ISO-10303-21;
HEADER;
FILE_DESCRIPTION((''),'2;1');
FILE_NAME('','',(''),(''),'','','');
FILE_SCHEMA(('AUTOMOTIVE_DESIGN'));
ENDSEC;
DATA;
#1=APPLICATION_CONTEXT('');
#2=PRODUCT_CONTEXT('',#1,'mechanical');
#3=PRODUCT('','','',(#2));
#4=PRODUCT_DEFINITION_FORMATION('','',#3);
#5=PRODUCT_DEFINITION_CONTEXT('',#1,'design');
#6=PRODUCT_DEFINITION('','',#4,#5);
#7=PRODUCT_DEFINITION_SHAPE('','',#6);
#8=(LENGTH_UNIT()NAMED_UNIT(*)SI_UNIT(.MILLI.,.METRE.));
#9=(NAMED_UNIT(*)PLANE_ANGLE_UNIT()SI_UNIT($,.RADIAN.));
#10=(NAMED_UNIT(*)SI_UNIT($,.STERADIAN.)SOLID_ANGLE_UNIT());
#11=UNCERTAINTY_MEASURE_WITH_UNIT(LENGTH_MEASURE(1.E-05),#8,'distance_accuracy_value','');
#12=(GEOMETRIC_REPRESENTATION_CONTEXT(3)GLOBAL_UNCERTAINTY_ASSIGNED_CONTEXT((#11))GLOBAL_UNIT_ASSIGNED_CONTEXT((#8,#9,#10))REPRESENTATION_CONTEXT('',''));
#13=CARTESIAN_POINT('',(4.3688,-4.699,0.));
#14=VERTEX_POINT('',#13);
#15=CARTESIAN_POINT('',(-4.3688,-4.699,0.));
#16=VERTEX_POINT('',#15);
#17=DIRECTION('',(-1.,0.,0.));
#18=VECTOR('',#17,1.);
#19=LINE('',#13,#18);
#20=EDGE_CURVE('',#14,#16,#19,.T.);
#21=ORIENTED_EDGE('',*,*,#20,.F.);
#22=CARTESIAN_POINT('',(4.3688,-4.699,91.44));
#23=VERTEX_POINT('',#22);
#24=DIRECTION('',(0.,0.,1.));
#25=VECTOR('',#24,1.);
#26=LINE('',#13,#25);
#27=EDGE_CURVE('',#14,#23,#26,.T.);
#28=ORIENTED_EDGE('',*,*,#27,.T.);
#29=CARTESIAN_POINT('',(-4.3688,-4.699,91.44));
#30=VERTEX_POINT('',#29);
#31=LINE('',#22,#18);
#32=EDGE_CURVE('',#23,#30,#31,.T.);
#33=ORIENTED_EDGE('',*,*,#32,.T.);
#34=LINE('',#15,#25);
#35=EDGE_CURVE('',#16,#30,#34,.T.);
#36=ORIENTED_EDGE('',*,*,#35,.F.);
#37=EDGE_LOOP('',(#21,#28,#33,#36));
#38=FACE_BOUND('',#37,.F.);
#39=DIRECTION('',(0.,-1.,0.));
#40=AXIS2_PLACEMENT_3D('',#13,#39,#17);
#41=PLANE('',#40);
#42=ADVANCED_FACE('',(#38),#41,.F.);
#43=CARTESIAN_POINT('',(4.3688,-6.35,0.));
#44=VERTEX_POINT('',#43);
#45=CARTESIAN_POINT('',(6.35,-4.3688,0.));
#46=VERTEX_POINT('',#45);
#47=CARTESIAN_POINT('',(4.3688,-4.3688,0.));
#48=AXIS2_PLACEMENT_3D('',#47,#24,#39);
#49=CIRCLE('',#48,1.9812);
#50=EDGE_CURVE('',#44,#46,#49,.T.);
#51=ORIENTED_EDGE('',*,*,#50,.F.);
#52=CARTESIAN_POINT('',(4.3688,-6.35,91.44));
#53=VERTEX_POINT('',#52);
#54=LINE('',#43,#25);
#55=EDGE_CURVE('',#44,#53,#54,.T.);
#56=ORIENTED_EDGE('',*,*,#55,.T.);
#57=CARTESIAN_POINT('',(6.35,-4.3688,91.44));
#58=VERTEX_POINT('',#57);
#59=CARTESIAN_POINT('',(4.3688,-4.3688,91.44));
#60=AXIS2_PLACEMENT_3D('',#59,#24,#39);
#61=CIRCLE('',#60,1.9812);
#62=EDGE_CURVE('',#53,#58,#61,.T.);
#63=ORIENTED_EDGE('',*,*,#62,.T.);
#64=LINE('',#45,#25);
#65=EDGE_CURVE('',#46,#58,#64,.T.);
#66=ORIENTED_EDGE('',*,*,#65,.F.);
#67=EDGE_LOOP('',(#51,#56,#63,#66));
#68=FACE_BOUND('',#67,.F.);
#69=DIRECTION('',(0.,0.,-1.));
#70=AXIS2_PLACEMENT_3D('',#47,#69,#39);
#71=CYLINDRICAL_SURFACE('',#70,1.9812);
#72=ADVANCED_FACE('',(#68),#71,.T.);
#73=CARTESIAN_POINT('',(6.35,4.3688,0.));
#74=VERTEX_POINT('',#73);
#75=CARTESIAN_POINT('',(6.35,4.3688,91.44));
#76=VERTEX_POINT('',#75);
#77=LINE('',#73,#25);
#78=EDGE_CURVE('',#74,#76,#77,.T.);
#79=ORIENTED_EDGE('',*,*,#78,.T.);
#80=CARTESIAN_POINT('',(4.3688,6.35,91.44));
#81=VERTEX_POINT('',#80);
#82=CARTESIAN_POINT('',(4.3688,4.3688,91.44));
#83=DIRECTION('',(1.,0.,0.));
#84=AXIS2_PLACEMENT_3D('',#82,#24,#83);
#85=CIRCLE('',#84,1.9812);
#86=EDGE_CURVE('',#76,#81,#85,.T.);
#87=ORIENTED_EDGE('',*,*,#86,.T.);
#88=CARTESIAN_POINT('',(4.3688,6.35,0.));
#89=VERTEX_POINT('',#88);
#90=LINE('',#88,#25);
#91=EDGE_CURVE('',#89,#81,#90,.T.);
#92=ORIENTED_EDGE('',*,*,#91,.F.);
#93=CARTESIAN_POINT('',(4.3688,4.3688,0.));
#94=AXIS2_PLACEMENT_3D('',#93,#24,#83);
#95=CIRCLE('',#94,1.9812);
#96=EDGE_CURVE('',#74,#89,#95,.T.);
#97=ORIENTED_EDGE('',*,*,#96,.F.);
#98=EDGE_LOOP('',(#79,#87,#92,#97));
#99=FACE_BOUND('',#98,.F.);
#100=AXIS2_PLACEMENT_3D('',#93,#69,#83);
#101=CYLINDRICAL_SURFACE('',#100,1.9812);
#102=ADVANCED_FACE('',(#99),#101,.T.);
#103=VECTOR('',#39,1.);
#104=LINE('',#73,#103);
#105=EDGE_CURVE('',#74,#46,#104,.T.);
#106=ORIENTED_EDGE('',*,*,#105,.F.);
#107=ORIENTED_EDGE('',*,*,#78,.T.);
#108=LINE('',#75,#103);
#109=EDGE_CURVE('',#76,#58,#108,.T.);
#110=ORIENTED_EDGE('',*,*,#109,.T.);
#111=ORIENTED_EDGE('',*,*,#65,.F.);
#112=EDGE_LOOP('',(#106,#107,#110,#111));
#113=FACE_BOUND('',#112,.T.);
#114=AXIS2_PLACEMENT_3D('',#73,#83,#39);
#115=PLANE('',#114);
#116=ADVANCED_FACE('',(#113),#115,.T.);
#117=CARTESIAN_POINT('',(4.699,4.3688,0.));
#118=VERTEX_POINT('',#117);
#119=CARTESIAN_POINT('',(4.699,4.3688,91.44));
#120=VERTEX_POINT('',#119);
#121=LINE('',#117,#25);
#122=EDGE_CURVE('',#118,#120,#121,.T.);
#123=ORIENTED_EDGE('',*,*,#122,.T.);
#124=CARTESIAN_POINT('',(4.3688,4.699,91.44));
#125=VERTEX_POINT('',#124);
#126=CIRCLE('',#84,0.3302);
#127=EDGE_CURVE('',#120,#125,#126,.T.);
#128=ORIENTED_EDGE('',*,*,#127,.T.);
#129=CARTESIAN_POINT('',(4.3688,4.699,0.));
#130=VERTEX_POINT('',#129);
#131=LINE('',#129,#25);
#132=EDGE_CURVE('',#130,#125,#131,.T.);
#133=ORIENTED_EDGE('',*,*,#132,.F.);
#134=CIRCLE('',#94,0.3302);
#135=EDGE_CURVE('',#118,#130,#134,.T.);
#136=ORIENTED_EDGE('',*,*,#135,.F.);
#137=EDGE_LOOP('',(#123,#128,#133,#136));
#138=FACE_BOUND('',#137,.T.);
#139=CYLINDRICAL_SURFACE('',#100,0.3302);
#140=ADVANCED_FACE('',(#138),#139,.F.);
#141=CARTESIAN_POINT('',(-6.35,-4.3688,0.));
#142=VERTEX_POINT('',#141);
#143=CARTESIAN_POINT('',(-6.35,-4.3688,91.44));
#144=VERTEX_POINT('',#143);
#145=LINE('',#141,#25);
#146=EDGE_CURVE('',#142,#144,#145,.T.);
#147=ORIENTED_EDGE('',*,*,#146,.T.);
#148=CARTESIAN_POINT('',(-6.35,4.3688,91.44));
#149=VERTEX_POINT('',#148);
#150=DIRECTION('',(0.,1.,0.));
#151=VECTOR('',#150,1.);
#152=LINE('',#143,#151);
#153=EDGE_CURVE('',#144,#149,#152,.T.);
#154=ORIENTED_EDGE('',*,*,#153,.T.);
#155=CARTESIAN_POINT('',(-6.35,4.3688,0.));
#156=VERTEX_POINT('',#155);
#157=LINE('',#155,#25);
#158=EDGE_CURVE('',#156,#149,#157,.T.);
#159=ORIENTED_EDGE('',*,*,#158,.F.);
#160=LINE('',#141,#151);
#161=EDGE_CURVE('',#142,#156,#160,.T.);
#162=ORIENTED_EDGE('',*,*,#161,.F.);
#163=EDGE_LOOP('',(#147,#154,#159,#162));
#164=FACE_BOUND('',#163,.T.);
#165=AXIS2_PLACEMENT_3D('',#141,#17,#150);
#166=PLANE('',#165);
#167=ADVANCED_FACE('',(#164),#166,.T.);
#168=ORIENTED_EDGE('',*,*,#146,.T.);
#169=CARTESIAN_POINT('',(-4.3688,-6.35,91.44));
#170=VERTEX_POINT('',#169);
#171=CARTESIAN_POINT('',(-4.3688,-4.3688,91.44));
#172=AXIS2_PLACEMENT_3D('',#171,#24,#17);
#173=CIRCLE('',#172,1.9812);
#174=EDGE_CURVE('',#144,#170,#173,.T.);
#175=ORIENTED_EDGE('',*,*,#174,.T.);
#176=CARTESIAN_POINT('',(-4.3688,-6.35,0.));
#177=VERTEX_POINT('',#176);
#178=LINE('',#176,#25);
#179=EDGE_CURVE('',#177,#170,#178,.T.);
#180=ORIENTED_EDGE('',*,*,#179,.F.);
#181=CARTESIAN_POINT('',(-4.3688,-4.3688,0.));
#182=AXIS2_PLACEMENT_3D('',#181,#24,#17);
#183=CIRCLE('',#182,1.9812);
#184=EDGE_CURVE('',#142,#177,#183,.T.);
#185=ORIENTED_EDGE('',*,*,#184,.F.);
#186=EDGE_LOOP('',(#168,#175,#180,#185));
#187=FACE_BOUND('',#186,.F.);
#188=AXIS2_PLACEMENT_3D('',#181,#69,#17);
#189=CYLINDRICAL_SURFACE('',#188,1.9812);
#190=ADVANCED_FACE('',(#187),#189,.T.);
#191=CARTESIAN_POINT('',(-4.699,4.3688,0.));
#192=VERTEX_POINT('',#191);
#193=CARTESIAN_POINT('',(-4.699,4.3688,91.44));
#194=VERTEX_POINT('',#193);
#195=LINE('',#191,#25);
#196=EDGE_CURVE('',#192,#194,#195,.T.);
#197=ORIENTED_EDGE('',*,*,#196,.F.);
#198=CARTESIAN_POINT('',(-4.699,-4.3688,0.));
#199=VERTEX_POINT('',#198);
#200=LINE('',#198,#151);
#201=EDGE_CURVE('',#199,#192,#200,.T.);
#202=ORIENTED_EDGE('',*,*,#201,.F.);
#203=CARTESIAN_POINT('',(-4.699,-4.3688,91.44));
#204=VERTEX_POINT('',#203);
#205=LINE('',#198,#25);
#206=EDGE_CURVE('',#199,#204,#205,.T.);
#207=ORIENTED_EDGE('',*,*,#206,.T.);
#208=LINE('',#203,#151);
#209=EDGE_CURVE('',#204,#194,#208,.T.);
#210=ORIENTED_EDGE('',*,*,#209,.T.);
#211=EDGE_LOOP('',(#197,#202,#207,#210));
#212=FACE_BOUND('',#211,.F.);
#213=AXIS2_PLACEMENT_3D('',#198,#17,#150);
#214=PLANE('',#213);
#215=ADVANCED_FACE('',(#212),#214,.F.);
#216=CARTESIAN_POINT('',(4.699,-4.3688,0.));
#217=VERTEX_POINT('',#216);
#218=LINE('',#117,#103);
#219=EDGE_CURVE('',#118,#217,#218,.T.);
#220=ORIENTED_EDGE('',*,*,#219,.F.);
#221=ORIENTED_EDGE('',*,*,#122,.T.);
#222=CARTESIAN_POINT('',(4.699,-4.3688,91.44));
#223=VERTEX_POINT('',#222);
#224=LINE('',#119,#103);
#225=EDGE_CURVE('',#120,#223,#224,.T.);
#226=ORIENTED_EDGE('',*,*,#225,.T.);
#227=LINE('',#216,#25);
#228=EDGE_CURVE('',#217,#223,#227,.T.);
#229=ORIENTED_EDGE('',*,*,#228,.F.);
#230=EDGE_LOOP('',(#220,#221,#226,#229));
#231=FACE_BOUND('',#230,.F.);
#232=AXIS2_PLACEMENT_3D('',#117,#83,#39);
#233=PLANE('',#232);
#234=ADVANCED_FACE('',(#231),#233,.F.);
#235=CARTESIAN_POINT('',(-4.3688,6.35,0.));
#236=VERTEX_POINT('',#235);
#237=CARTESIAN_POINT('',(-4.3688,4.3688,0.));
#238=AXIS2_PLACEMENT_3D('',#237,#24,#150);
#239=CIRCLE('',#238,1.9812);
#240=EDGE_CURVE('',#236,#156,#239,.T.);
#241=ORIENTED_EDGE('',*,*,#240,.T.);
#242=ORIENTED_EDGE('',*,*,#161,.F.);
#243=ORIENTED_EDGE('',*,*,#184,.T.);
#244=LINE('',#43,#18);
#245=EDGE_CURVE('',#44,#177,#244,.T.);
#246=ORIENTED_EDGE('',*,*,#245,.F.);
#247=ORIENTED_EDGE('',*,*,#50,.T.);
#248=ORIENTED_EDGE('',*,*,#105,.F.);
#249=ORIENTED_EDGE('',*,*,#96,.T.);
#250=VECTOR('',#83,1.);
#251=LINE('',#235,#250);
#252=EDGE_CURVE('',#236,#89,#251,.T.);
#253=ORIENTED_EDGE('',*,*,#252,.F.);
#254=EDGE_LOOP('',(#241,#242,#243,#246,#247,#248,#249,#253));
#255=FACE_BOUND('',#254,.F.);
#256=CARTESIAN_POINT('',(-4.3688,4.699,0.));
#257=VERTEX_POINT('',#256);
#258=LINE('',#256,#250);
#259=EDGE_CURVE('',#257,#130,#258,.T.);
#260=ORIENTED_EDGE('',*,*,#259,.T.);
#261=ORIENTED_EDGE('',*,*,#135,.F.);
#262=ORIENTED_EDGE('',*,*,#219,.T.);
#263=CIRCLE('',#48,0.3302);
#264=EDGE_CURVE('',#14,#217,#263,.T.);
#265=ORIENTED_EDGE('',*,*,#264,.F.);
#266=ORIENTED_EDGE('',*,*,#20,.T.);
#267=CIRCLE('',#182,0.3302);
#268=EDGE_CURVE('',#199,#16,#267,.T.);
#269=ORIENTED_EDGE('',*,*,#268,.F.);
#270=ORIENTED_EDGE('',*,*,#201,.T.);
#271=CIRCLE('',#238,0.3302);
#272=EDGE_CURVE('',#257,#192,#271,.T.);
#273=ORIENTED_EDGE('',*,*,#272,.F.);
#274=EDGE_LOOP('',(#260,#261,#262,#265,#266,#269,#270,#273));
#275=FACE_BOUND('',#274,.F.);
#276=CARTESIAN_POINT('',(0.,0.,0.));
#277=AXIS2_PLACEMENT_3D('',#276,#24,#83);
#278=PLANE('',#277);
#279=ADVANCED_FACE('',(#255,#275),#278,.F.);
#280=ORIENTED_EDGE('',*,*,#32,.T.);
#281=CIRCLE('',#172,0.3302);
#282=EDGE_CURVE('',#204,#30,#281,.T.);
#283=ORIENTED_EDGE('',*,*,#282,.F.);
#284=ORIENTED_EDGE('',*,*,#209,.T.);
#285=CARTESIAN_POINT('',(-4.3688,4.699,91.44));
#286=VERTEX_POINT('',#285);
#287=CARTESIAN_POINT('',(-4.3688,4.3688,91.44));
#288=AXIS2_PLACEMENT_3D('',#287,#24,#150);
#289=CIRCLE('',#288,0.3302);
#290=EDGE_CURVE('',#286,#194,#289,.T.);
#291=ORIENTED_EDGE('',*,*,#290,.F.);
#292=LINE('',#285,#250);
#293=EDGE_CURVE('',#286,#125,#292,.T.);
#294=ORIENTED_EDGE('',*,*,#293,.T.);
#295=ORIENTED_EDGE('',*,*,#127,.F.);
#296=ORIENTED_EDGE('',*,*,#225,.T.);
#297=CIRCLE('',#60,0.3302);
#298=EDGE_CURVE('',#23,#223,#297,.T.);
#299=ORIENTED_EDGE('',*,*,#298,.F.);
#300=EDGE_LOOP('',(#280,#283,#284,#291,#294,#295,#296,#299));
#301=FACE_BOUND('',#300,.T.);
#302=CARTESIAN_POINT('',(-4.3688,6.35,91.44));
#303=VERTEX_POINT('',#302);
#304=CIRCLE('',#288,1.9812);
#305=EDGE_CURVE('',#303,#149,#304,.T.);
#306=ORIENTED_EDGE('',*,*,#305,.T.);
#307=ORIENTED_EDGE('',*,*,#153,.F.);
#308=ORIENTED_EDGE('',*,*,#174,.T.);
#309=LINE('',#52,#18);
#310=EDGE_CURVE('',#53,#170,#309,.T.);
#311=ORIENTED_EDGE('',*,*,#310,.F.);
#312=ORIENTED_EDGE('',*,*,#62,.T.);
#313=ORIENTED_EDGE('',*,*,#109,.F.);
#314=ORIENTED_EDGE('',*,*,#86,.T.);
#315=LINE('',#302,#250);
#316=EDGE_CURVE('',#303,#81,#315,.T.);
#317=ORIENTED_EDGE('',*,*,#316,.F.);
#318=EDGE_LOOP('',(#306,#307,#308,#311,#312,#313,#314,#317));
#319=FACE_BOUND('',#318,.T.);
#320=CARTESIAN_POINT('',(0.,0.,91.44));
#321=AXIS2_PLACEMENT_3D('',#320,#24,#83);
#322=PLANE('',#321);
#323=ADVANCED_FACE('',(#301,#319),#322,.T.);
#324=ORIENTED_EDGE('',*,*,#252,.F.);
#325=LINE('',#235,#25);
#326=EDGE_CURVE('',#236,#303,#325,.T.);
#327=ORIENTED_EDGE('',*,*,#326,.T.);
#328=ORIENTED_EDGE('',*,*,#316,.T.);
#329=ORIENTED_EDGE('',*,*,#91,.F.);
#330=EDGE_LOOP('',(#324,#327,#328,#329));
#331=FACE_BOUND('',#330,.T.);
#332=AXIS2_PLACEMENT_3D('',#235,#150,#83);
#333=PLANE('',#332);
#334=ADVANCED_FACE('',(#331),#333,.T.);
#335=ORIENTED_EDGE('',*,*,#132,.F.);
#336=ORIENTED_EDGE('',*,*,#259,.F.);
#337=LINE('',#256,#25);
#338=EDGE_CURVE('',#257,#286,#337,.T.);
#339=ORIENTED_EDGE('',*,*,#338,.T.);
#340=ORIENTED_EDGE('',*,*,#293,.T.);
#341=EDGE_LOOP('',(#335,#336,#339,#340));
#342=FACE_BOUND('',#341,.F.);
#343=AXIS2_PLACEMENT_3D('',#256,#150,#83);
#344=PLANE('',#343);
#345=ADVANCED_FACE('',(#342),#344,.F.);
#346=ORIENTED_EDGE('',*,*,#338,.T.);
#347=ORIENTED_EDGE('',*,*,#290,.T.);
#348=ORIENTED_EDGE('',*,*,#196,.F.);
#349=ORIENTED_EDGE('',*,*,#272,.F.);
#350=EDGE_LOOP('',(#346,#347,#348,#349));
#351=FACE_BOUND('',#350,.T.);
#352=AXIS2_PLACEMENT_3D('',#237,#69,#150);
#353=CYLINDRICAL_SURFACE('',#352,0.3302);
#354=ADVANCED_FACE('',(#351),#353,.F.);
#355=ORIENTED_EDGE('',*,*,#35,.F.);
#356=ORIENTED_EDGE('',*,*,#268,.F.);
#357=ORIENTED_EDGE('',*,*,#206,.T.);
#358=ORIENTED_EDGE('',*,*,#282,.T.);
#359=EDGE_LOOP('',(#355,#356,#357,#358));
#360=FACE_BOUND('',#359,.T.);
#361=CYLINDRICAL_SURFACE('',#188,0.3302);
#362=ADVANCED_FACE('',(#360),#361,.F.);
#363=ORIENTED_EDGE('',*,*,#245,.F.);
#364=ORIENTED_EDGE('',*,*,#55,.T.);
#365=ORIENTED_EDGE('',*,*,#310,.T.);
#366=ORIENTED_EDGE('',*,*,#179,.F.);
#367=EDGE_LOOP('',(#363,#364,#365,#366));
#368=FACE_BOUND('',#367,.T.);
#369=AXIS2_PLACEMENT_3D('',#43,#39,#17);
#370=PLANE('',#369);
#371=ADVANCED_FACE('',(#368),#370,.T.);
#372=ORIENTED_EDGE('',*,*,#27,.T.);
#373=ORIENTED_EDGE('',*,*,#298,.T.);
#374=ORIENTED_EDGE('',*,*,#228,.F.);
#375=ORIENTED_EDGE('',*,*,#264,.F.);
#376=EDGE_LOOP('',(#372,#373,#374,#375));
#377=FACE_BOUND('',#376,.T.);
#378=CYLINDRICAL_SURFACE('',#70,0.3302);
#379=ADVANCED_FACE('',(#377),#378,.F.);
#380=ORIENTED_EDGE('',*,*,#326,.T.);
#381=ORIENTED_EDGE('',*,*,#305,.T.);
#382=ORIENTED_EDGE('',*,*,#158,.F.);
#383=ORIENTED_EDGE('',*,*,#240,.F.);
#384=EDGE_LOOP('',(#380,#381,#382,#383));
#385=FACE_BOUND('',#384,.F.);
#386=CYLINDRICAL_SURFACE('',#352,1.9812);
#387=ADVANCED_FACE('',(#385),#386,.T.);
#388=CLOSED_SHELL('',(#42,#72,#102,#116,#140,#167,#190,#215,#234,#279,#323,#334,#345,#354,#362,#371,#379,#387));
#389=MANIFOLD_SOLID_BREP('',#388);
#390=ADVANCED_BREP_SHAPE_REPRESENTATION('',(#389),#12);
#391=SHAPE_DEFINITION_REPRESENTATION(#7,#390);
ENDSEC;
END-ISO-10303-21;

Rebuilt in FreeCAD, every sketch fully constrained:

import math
import FreeCAD as App
import Part
import Sketcher

V = App.Vector
Q = App.Units.Quantity

doc = App.newDocument("Part")
body = doc.addObject("PartDesign::Body", "Body")

# Sketch on XY plane
sketch1 = body.newObject("Sketcher::SketchObject", "Sketch")
sketch1.AttachmentSupport = (doc.getObject("XY_Plane"), [""])
sketch1.MapMode = "FlatFace"
sketch1.addGeometry([
    Part.LineSegment(V(-6.35, 4.37, 0), V(-6.35, -4.37, 0)),  # 0
    Part.ArcOfCircle(Part.Circle(V(-4.37, -4.37, 0), V(0, 0, 1), 1.98), math.radians(180), math.radians(270)),  # 1
    Part.LineSegment(V(-4.37, -6.35, 0), V(4.37, -6.35, 0)),  # 2
    Part.ArcOfCircle(Part.Circle(V(4.37, -4.37, 0), V(0, 0, 1), 1.98), math.radians(-90), math.radians(0)),  # 3
    Part.LineSegment(V(6.35, -4.37, 0), V(6.35, 4.37, 0)),  # 4
    Part.ArcOfCircle(Part.Circle(V(4.37, 4.37, 0), V(0, 0, 1), 1.98), math.radians(0), math.radians(90)),  # 5
    Part.LineSegment(V(4.37, 6.35, 0), V(-4.37, 6.35, 0)),  # 6
    Part.ArcOfCircle(Part.Circle(V(-4.37, 4.37, 0), V(0, 0, 1), 1.98), math.radians(90), math.radians(180)),  # 7
    Part.ArcOfCircle(Part.Circle(V(-4.37, 4.37, 0), V(0, 0, 1), 0.33), math.radians(90), math.radians(180)),  # 8
    Part.LineSegment(V(-4.37, 4.7, 0), V(4.37, 4.7, 0)),  # 9
    Part.ArcOfCircle(Part.Circle(V(4.37, 4.37, 0), V(0, 0, 1), 0.33), math.radians(0), math.radians(90)),  # 10
    Part.LineSegment(V(4.7, 4.37, 0), V(4.7, -4.37, 0)),  # 11
    Part.ArcOfCircle(Part.Circle(V(4.37, -4.37, 0), V(0, 0, 1), 0.33), math.radians(-90), math.radians(0)),  # 12
    Part.LineSegment(V(4.37, -4.7, 0), V(-4.37, -4.7, 0)),  # 13
    Part.ArcOfCircle(Part.Circle(V(-4.37, -4.37, 0), V(0, 0, 1), 0.33), math.radians(180), math.radians(270)),  # 14
    Part.LineSegment(V(-4.7, -4.37, 0), V(-4.7, 4.37, 0)),  # 15
], False)
sketch1.addConstraint([
    Sketcher.Constraint("Tangent", 0, 2, 1, 1),
    Sketcher.Constraint("Tangent", 1, 2, 2, 1),
    Sketcher.Constraint("Tangent", 2, 2, 3, 1),
    Sketcher.Constraint("Tangent", 3, 2, 4, 1),
    Sketcher.Constraint("Tangent", 4, 2, 5, 1),
    Sketcher.Constraint("Tangent", 5, 2, 6, 1),
    Sketcher.Constraint("Tangent", 6, 2, 7, 1),
    Sketcher.Constraint("Tangent", 7, 2, 0, 1),
    Sketcher.Constraint("Tangent", 8, 1, 9, 1),
    Sketcher.Constraint("Tangent", 9, 2, 10, 2),
    Sketcher.Constraint("Tangent", 10, 1, 11, 1),
    Sketcher.Constraint("Tangent", 11, 2, 12, 2),
    Sketcher.Constraint("Tangent", 12, 1, 13, 1),
    Sketcher.Constraint("Tangent", 13, 2, 14, 2),
    Sketcher.Constraint("Tangent", 14, 1, 15, 1),
    Sketcher.Constraint("Tangent", 15, 2, 8, 2),
    Sketcher.Constraint("Vertical", 0),
    Sketcher.Constraint("Horizontal", 2),
    Sketcher.Constraint("Vertical", 4),
    Sketcher.Constraint("Horizontal", 6),
    Sketcher.Constraint("Horizontal", 9),
    Sketcher.Constraint("Vertical", 11),
    Sketcher.Constraint("Horizontal", 13),
    Sketcher.Constraint("Vertical", 15),
    Sketcher.Constraint("Coincident", 8, 3, 7, 3),
    Sketcher.Constraint("Coincident", 10, 3, 5, 3),
    Sketcher.Constraint("Coincident", 12, 3, 3, 3),
    Sketcher.Constraint("Equal", 1, 3),
    Sketcher.Constraint("Equal", 3, 5),
    Sketcher.Constraint("Equal", 5, 7),
    Sketcher.Constraint("Equal", 12, 14),
    Sketcher.Constraint("Symmetric", 1, 3, 5, 3, -1, 1),
    Sketcher.Constraint("Equal", 13, 0),
    Sketcher.Constraint("Radius", 1, Q("0.078 in")),
    Sketcher.Constraint("DistanceX", 0, 2, -1, 1, Q("0.25 in")),
    Sketcher.Constraint("Radius", 8, Q("0.013 in")),
])
pad1 = body.newObject("PartDesign::Pad", "Pad")
pad1.Profile = sketch1
pad1.Length = Q("3.6 in")

doc.recompute()
